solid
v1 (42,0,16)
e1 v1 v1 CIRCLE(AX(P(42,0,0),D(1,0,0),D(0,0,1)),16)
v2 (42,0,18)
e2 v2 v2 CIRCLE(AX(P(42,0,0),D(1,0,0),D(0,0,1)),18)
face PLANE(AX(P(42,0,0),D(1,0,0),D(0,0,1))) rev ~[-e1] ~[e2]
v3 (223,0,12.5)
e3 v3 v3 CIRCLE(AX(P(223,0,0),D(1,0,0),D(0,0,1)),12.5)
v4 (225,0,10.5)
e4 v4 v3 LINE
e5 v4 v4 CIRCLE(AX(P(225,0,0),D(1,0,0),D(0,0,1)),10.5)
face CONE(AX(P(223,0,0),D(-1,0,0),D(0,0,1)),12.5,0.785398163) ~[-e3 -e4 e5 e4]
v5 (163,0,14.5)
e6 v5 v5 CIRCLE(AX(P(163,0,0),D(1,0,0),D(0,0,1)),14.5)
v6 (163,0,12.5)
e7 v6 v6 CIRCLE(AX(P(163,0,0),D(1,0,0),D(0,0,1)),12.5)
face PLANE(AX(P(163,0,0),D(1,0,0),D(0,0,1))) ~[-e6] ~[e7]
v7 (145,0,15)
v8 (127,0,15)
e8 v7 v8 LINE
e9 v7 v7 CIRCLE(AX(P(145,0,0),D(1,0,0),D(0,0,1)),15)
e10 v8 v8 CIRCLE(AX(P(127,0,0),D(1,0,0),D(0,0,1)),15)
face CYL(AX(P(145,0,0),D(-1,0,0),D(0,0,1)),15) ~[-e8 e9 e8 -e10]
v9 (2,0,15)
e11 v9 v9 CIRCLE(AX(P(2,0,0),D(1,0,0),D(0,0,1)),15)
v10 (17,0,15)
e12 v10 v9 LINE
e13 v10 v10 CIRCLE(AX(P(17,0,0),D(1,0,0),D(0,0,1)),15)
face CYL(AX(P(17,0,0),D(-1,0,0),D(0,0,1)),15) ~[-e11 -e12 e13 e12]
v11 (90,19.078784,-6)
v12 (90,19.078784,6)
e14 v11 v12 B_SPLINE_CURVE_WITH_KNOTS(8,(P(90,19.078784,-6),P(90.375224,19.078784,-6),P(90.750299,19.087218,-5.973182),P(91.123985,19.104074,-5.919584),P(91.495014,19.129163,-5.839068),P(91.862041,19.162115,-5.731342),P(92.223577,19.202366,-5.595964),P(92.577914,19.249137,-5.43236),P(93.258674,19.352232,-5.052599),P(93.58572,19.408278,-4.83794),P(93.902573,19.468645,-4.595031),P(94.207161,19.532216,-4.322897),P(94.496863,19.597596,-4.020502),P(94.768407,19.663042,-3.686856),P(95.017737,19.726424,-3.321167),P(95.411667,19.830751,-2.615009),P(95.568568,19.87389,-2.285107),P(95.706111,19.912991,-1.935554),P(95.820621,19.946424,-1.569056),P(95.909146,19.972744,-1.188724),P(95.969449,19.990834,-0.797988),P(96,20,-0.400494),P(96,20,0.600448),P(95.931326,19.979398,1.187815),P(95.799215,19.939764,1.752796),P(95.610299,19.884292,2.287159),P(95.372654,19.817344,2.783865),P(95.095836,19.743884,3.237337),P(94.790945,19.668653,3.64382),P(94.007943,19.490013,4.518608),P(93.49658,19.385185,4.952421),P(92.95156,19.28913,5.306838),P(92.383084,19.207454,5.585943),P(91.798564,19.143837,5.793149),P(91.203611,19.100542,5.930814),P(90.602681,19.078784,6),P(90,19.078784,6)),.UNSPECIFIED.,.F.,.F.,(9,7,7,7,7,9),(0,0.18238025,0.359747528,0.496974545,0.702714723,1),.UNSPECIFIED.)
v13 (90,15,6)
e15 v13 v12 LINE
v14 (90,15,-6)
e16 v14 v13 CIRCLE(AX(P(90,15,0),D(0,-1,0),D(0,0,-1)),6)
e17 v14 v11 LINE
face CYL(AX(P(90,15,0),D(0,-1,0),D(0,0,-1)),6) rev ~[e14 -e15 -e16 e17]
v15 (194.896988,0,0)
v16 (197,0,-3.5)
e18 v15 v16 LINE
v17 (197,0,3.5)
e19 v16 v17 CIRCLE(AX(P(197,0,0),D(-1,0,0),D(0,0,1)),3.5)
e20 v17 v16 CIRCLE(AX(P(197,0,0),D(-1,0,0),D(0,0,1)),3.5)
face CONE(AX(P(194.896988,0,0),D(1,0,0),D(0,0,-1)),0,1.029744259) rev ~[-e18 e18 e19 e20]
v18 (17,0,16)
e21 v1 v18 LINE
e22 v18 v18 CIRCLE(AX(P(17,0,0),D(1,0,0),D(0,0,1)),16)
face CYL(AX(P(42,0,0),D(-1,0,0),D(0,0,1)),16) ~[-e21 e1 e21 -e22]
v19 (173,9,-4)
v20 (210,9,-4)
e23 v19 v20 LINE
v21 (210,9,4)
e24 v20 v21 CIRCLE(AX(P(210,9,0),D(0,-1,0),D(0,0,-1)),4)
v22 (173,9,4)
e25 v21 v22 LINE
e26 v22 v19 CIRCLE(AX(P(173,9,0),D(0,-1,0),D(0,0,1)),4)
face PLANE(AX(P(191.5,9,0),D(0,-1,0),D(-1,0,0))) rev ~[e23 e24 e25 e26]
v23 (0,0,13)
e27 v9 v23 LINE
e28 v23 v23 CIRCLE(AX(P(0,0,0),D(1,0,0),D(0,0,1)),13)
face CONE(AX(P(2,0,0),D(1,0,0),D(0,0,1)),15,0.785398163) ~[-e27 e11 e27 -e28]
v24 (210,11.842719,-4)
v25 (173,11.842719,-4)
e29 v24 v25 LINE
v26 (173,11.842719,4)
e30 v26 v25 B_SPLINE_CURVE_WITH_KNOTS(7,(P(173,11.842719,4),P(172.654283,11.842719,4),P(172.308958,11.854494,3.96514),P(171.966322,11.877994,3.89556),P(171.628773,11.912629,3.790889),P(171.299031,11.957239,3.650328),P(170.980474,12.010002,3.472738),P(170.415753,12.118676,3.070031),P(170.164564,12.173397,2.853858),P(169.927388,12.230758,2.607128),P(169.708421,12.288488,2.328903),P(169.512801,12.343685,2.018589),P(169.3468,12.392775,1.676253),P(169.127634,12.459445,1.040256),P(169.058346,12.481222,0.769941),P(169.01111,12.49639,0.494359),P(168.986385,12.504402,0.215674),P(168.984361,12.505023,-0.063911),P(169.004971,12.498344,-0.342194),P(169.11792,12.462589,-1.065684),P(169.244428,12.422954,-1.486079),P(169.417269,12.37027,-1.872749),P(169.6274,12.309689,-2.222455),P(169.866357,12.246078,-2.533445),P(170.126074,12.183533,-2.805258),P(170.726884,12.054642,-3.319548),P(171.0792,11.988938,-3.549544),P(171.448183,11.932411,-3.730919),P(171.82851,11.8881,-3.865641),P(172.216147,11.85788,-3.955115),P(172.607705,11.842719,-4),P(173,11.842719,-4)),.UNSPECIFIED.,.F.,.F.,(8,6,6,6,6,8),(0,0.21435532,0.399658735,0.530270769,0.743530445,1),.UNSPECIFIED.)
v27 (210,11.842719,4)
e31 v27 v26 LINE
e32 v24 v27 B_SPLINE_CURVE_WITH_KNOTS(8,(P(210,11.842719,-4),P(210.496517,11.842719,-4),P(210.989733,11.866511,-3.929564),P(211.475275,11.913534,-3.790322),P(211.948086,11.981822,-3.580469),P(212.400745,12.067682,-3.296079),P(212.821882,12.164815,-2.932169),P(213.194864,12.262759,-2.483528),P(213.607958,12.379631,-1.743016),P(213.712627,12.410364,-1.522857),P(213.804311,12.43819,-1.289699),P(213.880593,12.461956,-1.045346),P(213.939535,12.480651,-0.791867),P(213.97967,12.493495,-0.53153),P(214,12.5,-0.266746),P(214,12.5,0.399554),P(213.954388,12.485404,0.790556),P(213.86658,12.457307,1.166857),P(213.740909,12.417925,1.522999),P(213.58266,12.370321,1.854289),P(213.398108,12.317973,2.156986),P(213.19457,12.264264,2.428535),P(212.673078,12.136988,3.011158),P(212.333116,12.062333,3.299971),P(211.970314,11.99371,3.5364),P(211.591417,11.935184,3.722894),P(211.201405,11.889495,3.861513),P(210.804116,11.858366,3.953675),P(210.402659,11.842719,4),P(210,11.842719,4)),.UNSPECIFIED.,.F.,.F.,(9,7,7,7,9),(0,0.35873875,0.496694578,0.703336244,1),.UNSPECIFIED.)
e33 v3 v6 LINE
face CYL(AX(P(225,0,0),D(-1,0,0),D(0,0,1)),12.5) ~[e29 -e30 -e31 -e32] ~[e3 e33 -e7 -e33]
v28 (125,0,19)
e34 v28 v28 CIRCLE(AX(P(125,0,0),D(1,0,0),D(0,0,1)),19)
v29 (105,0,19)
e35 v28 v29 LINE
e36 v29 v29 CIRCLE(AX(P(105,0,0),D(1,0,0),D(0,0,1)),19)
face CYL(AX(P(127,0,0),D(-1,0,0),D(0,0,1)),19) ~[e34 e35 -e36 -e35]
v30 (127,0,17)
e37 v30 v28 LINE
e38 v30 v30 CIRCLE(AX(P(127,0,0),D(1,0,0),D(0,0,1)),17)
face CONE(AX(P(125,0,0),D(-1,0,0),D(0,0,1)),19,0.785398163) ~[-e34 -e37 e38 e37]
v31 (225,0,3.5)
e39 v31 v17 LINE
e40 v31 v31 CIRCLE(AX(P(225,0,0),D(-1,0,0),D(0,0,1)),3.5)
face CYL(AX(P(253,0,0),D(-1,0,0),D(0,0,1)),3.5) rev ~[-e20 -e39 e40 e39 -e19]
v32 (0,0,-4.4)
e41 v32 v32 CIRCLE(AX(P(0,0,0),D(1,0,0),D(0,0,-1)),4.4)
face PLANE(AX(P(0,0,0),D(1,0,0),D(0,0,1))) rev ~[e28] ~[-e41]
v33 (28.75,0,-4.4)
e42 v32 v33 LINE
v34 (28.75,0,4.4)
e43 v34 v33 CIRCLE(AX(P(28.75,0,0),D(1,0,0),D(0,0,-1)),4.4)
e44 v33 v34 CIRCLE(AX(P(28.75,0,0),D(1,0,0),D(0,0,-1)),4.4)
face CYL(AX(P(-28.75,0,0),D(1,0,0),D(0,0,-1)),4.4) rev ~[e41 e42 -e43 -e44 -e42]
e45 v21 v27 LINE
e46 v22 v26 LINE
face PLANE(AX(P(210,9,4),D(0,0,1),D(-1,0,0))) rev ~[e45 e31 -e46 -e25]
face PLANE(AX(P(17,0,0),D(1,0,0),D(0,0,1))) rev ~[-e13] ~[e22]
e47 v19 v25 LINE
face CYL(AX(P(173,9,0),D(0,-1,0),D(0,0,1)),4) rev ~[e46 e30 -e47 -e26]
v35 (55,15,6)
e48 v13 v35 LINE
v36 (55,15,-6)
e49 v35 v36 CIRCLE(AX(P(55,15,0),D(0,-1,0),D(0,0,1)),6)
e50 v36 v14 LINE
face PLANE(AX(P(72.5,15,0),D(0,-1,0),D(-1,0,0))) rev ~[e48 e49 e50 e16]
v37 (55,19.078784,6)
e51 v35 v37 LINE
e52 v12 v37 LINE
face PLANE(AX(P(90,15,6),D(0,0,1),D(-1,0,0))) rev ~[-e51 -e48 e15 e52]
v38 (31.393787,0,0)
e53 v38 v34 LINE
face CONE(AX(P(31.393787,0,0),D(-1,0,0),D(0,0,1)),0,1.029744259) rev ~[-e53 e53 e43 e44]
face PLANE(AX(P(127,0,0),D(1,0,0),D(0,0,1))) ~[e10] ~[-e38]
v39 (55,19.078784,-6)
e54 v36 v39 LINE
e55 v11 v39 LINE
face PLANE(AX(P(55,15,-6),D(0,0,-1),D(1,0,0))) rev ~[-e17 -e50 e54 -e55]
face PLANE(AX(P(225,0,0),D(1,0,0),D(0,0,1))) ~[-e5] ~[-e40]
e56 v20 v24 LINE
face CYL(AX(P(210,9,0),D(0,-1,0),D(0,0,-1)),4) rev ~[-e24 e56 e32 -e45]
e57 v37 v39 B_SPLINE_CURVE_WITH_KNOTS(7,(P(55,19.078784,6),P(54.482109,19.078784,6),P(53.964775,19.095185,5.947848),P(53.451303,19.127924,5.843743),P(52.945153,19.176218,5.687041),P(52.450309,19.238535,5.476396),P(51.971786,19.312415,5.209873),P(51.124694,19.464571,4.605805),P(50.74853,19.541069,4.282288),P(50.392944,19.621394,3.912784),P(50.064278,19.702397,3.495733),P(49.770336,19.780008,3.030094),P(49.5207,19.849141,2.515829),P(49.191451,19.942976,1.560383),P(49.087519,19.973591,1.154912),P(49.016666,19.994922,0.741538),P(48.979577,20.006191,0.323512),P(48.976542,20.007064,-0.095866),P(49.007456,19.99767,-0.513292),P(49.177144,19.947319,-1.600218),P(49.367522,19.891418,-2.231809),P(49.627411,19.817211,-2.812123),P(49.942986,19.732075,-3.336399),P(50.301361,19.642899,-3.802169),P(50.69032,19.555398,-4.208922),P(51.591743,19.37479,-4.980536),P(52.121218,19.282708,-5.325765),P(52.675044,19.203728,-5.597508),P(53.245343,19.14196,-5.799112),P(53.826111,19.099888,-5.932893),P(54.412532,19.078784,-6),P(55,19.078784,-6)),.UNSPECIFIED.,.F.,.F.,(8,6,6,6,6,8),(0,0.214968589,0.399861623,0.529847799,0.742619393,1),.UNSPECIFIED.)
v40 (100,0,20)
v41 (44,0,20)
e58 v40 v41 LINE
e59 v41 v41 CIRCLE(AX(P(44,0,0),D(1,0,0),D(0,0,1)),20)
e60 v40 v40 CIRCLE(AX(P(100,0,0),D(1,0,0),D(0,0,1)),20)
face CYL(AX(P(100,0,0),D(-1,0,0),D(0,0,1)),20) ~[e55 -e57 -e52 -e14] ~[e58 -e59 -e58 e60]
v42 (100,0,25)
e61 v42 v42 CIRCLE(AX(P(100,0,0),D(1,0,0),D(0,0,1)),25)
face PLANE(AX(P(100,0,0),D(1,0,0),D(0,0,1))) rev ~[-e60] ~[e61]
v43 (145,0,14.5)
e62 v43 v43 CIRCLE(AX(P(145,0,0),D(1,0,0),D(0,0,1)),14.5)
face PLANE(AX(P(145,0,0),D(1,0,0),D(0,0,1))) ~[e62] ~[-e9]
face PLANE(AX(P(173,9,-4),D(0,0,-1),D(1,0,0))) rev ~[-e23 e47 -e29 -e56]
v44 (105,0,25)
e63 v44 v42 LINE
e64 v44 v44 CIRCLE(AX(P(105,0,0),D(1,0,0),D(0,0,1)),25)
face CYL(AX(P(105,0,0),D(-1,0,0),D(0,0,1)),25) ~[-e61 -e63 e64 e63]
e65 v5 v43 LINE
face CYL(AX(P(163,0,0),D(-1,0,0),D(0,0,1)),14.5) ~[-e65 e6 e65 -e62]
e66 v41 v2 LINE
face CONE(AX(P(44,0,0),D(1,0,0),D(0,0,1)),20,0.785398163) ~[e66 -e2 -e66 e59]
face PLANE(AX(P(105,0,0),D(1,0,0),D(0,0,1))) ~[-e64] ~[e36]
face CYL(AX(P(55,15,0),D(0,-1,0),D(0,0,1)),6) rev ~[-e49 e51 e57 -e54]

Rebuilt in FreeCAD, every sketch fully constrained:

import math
import FreeCAD as App
import Part
import Sketcher
Q = App.Units.Quantity


def edges_at(feature, points):
    """Names of the edges that pass closest to the given points."""
    edges = feature.Shape.Edges
    near = lambda p: min(range(len(edges)), key=lambda i: edges[i].distToShape(Part.Vertex(*p))[0])
    return sorted({f"Edge{near(p) + 1}" for p in points})


def add_polygon(sketch, points):
    """Adds a closed chain of lines whose ends are joined by coincident constraints."""
    first, n = sketch.GeometryCount, len(points)
    for a, b in zip(points, points[1:] + points[:1]):
        sketch.addGeometry(Part.LineSegment(App.Vector(*a, 0), App.Vector(*b, 0)), False)
    for i in range(n):
        sketch.addConstraint(Sketcher.Constraint("Coincident", first + i, 2, first + (i + 1) % n, 1))

doc = App.newDocument("Part")
body = doc.addObject("PartDesign::Body", "Body")

# Sketch on XY plane
sketch1 = body.newObject("Sketcher::SketchObject", "Sketch")
sketch1.AttachmentSupport = (doc.getObject("XY_Plane"), [""])
sketch1.MapMode = "FlatFace"
add_polygon(sketch1, [(0, 0), (225, 0), (225, -12.5), (163, -12.5), (163, -14.5), (145, -14.5), (145, -15), (127, -15), (127, -19), (105, -19), (105, -25), (100, -25), (100, -20), (42, -20), (42, -16), (17, -16), (17, -15), (0, -15)])  # lines 0-17
sketch1.addConstraint([
    Sketcher.Constraint("Horizontal", 0),
    Sketcher.Constraint("Vertical", 1),
    Sketcher.Constraint("Horizontal", 2),
    Sketcher.Constraint("Vertical", 3),
    Sketcher.Constraint("Horizontal", 4),
    Sketcher.Constraint("Vertical", 5),
    Sketcher.Constraint("Horizontal", 6),
    Sketcher.Constraint("Vertical", 7),
    Sketcher.Constraint("Horizontal", 8),
    Sketcher.Constraint("Vertical", 9),
    Sketcher.Constraint("Horizontal", 10),
    Sketcher.Constraint("Vertical", 11),
    Sketcher.Constraint("Horizontal", 12),
    Sketcher.Constraint("Vertical", 13),
    Sketcher.Constraint("Horizontal", 14),
    Sketcher.Constraint("Vertical", 15),
    Sketcher.Constraint("Horizontal", 16),
    Sketcher.Constraint("Vertical", 17),
    Sketcher.Constraint("Coincident", 17, 2, -1, 1),
    Sketcher.Constraint("Horizontal", 6, 2, 15, 2),
    Sketcher.Constraint("Equal", 4, 6),
    Sketcher.Constraint("Equal", 10, 11),
    Sketcher.Constraint("Equal", 7, 13),
    Sketcher.Constraint("DistanceX", 0, 1, 0, 2, Q("225 mm")),
    Sketcher.Constraint("DistanceX", 2, 2, 2, 1, Q("62 mm")),
    Sketcher.Constraint("DistanceX", 4, 2, 4, 1, Q("18 mm")),
    Sketcher.Constraint("DistanceX", 8, 2, 8, 1, Q("22 mm")),
    Sketcher.Constraint("DistanceX", 10, 2, 10, 1, Q("5 mm")),
    Sketcher.Constraint("DistanceX", 12, 2, 12, 1, Q("58 mm")),
    Sketcher.Constraint("DistanceX", 14, 2, 14, 1, Q("25 mm")),
    Sketcher.Constraint("DistanceY", 3, 2, 3, 1, Q("2 mm")),
    Sketcher.Constraint("DistanceY", 7, 2, 7, 1, Q("4 mm")),
    Sketcher.Constraint("DistanceY", 9, 2, 9, 1, Q("6 mm")),
    Sketcher.Constraint("DistanceY", 17, 1, 17, 2, Q("15 mm")),
    Sketcher.Constraint("DistanceY", 1, 2, 1, 1, Q("12.5 mm")),
])
revolution = body.newObject("PartDesign::Revolution", "Revolution")
revolution.Profile = sketch1
revolution.ReferenceAxis = (sketch1, ["H_Axis"])
revolution.Angle = 360
doc.recompute()

chamfer = body.newObject("PartDesign::Chamfer", "Chamfer")
chamfer.Base = (revolution, edges_at(revolution, [
    (225, 0, -12.5),
    (127, 0, -19),
    (42, 0, -20),
    (0, 0, -15),
]))
chamfer.Size = 2

# Sketch on XZ plane
sketch2 = body.newObject("Sketcher::SketchObject", "Sketch001")
sketch2.AttachmentSupport = (doc.getObject("XZ_Plane"), [""])
sketch2.MapMode = "FlatFace"
sketch2.AttachmentOffset = App.Placement(App.Vector(0, 0, -15), App.Rotation())
sketch2.addGeometry([
    Part.LineSegment(App.Vector(90, -6, 0), App.Vector(55, -6, 0)),
    Part.ArcOfCircle(Part.Circle(App.Vector(55, 0, 0), App.Vector(0, 0, 1), 6), math.radians(90), math.radians(270)),
    Part.LineSegment(App.Vector(55, 6, 0), App.Vector(90, 6, 0)),
    Part.ArcOfCircle(Part.Circle(App.Vector(90, 0, 0), App.Vector(0, 0, 1), 6), math.radians(-90), math.radians(90)),
], False)
sketch2.addConstraint([
    Sketcher.Constraint("Tangent", 0, 2, 1, 2),
    Sketcher.Constraint("Tangent", 1, 1, 2, 1),
    Sketcher.Constraint("Tangent", 2, 2, 3, 2),
    Sketcher.Constraint("Tangent", 3, 1, 0, 1),
    Sketcher.Constraint("Horizontal", 0),
    Sketcher.Constraint("Horizontal", 2),
    Sketcher.Constraint("PointOnObject", 1, 3, -1),
    Sketcher.Constraint("Radius", 1, Q("6 mm")),
    Sketcher.Constraint("DistanceX", 0, 2, 0, 1, Q("35 mm")),
    Sketcher.Constraint("DistanceX", -1, 1, 1, 3, Q("55 mm")),
])
pocket1 = body.newObject("PartDesign::Pocket", "Pocket")
pocket1.Profile = sketch2
pocket1.Length = 10

# Sketch on XZ plane
sketch3 = body.newObject("Sketcher::SketchObject", "Sketch002")
sketch3.AttachmentSupport = (doc.getObject("XZ_Plane"), [""])
sketch3.MapMode = "FlatFace"
sketch3.AttachmentOffset = App.Placement(App.Vector(0, 0, -9), App.Rotation())
sketch3.addGeometry([
    Part.LineSegment(App.Vector(210, -4, 0), App.Vector(173, -4, 0)),
    Part.ArcOfCircle(Part.Circle(App.Vector(173, 0, 0), App.Vector(0, 0, 1), 4), math.radians(90), math.radians(270)),
    Part.LineSegment(App.Vector(173, 4, 0), App.Vector(210, 4, 0)),
    Part.ArcOfCircle(Part.Circle(App.Vector(210, 0, 0), App.Vector(0, 0, 1), 4), math.radians(-90), math.radians(90)),
], False)
sketch3.addConstraint([
    Sketcher.Constraint("Tangent", 0, 2, 1, 2),
    Sketcher.Constraint("Tangent", 1, 1, 2, 1),
    Sketcher.Constraint("Tangent", 2, 2, 3, 2),
    Sketcher.Constraint("Tangent", 3, 1, 0, 1),
    Sketcher.Constraint("Horizontal", 0),
    Sketcher.Constraint("Horizontal", 2),
    Sketcher.Constraint("PointOnObject", 1, 3, -1),
    Sketcher.Constraint("Radius", 1, Q("4 mm")),
    Sketcher.Constraint("DistanceX", 0, 2, 0, 1, Q("37 mm")),
    Sketcher.Constraint("DistanceX", -1, 1, 1, 3, Q("173 mm")),
])
pocket2 = body.newObject("PartDesign::Pocket", "Pocket001")
pocket2.Profile = sketch3
pocket2.Length = 10

# Sketch on YZ plane
sketch4 = body.newObject("Sketcher::SketchObject", "Sketch003")
sketch4.AttachmentSupport = (doc.getObject("YZ_Plane"), [""])
sketch4.MapMode = "FlatFace"
sketch4.AttachmentOffset = App.Placement(App.Vector(0, 0, 225), App.Rotation())
sketch4.addGeometry(Part.Circle(App.Vector(0, 0, 0), App.Vector(0, 0, 1), 3.5), False)
sketch4.addConstraint([
    Sketcher.Constraint("Coincident", 0, 3, -1, 1),
    Sketcher.Constraint("Diameter", 0, Q("7 mm")),
])
doc.recompute()
hole = body.newObject("PartDesign::Hole", "Hole")
hole.Profile = sketch4
hole.ThreadType = "None"
hole.Diameter = 7
hole.DepthType = "Dimension"
hole.Depth = 28
hole.DrillPoint = "Angled"
hole.DrillPointAngle = 118

# Sketch on YZ plane
sketch5 = body.newObject("Sketcher::SketchObject", "Sketch004")
sketch5.AttachmentSupport = (doc.getObject("YZ_Plane"), [""])
sketch5.MapMode = "FlatFace"
sketch5.addGeometry(Part.Circle(App.Vector(0, 0, 0), App.Vector(0, 0, 1), 4.4), False)
sketch5.addConstraint([
    Sketcher.Constraint("Coincident", 0, 3, -1, 1),
    Sketcher.Constraint("Diameter", 0, Q("8.8 mm")),
])
doc.recompute()
hole2 = body.newObject("PartDesign::Hole", "Hole001")
hole2.Profile = sketch5
hole2.ThreadType = "None"
hole2.Diameter = 8.8
hole2.DepthType = "Dimension"
hole2.Depth = 28.75
hole2.DrillPoint = "Angled"
hole2.DrillPointAngle = 118
hole2.Reversed = True

doc.recompute()
